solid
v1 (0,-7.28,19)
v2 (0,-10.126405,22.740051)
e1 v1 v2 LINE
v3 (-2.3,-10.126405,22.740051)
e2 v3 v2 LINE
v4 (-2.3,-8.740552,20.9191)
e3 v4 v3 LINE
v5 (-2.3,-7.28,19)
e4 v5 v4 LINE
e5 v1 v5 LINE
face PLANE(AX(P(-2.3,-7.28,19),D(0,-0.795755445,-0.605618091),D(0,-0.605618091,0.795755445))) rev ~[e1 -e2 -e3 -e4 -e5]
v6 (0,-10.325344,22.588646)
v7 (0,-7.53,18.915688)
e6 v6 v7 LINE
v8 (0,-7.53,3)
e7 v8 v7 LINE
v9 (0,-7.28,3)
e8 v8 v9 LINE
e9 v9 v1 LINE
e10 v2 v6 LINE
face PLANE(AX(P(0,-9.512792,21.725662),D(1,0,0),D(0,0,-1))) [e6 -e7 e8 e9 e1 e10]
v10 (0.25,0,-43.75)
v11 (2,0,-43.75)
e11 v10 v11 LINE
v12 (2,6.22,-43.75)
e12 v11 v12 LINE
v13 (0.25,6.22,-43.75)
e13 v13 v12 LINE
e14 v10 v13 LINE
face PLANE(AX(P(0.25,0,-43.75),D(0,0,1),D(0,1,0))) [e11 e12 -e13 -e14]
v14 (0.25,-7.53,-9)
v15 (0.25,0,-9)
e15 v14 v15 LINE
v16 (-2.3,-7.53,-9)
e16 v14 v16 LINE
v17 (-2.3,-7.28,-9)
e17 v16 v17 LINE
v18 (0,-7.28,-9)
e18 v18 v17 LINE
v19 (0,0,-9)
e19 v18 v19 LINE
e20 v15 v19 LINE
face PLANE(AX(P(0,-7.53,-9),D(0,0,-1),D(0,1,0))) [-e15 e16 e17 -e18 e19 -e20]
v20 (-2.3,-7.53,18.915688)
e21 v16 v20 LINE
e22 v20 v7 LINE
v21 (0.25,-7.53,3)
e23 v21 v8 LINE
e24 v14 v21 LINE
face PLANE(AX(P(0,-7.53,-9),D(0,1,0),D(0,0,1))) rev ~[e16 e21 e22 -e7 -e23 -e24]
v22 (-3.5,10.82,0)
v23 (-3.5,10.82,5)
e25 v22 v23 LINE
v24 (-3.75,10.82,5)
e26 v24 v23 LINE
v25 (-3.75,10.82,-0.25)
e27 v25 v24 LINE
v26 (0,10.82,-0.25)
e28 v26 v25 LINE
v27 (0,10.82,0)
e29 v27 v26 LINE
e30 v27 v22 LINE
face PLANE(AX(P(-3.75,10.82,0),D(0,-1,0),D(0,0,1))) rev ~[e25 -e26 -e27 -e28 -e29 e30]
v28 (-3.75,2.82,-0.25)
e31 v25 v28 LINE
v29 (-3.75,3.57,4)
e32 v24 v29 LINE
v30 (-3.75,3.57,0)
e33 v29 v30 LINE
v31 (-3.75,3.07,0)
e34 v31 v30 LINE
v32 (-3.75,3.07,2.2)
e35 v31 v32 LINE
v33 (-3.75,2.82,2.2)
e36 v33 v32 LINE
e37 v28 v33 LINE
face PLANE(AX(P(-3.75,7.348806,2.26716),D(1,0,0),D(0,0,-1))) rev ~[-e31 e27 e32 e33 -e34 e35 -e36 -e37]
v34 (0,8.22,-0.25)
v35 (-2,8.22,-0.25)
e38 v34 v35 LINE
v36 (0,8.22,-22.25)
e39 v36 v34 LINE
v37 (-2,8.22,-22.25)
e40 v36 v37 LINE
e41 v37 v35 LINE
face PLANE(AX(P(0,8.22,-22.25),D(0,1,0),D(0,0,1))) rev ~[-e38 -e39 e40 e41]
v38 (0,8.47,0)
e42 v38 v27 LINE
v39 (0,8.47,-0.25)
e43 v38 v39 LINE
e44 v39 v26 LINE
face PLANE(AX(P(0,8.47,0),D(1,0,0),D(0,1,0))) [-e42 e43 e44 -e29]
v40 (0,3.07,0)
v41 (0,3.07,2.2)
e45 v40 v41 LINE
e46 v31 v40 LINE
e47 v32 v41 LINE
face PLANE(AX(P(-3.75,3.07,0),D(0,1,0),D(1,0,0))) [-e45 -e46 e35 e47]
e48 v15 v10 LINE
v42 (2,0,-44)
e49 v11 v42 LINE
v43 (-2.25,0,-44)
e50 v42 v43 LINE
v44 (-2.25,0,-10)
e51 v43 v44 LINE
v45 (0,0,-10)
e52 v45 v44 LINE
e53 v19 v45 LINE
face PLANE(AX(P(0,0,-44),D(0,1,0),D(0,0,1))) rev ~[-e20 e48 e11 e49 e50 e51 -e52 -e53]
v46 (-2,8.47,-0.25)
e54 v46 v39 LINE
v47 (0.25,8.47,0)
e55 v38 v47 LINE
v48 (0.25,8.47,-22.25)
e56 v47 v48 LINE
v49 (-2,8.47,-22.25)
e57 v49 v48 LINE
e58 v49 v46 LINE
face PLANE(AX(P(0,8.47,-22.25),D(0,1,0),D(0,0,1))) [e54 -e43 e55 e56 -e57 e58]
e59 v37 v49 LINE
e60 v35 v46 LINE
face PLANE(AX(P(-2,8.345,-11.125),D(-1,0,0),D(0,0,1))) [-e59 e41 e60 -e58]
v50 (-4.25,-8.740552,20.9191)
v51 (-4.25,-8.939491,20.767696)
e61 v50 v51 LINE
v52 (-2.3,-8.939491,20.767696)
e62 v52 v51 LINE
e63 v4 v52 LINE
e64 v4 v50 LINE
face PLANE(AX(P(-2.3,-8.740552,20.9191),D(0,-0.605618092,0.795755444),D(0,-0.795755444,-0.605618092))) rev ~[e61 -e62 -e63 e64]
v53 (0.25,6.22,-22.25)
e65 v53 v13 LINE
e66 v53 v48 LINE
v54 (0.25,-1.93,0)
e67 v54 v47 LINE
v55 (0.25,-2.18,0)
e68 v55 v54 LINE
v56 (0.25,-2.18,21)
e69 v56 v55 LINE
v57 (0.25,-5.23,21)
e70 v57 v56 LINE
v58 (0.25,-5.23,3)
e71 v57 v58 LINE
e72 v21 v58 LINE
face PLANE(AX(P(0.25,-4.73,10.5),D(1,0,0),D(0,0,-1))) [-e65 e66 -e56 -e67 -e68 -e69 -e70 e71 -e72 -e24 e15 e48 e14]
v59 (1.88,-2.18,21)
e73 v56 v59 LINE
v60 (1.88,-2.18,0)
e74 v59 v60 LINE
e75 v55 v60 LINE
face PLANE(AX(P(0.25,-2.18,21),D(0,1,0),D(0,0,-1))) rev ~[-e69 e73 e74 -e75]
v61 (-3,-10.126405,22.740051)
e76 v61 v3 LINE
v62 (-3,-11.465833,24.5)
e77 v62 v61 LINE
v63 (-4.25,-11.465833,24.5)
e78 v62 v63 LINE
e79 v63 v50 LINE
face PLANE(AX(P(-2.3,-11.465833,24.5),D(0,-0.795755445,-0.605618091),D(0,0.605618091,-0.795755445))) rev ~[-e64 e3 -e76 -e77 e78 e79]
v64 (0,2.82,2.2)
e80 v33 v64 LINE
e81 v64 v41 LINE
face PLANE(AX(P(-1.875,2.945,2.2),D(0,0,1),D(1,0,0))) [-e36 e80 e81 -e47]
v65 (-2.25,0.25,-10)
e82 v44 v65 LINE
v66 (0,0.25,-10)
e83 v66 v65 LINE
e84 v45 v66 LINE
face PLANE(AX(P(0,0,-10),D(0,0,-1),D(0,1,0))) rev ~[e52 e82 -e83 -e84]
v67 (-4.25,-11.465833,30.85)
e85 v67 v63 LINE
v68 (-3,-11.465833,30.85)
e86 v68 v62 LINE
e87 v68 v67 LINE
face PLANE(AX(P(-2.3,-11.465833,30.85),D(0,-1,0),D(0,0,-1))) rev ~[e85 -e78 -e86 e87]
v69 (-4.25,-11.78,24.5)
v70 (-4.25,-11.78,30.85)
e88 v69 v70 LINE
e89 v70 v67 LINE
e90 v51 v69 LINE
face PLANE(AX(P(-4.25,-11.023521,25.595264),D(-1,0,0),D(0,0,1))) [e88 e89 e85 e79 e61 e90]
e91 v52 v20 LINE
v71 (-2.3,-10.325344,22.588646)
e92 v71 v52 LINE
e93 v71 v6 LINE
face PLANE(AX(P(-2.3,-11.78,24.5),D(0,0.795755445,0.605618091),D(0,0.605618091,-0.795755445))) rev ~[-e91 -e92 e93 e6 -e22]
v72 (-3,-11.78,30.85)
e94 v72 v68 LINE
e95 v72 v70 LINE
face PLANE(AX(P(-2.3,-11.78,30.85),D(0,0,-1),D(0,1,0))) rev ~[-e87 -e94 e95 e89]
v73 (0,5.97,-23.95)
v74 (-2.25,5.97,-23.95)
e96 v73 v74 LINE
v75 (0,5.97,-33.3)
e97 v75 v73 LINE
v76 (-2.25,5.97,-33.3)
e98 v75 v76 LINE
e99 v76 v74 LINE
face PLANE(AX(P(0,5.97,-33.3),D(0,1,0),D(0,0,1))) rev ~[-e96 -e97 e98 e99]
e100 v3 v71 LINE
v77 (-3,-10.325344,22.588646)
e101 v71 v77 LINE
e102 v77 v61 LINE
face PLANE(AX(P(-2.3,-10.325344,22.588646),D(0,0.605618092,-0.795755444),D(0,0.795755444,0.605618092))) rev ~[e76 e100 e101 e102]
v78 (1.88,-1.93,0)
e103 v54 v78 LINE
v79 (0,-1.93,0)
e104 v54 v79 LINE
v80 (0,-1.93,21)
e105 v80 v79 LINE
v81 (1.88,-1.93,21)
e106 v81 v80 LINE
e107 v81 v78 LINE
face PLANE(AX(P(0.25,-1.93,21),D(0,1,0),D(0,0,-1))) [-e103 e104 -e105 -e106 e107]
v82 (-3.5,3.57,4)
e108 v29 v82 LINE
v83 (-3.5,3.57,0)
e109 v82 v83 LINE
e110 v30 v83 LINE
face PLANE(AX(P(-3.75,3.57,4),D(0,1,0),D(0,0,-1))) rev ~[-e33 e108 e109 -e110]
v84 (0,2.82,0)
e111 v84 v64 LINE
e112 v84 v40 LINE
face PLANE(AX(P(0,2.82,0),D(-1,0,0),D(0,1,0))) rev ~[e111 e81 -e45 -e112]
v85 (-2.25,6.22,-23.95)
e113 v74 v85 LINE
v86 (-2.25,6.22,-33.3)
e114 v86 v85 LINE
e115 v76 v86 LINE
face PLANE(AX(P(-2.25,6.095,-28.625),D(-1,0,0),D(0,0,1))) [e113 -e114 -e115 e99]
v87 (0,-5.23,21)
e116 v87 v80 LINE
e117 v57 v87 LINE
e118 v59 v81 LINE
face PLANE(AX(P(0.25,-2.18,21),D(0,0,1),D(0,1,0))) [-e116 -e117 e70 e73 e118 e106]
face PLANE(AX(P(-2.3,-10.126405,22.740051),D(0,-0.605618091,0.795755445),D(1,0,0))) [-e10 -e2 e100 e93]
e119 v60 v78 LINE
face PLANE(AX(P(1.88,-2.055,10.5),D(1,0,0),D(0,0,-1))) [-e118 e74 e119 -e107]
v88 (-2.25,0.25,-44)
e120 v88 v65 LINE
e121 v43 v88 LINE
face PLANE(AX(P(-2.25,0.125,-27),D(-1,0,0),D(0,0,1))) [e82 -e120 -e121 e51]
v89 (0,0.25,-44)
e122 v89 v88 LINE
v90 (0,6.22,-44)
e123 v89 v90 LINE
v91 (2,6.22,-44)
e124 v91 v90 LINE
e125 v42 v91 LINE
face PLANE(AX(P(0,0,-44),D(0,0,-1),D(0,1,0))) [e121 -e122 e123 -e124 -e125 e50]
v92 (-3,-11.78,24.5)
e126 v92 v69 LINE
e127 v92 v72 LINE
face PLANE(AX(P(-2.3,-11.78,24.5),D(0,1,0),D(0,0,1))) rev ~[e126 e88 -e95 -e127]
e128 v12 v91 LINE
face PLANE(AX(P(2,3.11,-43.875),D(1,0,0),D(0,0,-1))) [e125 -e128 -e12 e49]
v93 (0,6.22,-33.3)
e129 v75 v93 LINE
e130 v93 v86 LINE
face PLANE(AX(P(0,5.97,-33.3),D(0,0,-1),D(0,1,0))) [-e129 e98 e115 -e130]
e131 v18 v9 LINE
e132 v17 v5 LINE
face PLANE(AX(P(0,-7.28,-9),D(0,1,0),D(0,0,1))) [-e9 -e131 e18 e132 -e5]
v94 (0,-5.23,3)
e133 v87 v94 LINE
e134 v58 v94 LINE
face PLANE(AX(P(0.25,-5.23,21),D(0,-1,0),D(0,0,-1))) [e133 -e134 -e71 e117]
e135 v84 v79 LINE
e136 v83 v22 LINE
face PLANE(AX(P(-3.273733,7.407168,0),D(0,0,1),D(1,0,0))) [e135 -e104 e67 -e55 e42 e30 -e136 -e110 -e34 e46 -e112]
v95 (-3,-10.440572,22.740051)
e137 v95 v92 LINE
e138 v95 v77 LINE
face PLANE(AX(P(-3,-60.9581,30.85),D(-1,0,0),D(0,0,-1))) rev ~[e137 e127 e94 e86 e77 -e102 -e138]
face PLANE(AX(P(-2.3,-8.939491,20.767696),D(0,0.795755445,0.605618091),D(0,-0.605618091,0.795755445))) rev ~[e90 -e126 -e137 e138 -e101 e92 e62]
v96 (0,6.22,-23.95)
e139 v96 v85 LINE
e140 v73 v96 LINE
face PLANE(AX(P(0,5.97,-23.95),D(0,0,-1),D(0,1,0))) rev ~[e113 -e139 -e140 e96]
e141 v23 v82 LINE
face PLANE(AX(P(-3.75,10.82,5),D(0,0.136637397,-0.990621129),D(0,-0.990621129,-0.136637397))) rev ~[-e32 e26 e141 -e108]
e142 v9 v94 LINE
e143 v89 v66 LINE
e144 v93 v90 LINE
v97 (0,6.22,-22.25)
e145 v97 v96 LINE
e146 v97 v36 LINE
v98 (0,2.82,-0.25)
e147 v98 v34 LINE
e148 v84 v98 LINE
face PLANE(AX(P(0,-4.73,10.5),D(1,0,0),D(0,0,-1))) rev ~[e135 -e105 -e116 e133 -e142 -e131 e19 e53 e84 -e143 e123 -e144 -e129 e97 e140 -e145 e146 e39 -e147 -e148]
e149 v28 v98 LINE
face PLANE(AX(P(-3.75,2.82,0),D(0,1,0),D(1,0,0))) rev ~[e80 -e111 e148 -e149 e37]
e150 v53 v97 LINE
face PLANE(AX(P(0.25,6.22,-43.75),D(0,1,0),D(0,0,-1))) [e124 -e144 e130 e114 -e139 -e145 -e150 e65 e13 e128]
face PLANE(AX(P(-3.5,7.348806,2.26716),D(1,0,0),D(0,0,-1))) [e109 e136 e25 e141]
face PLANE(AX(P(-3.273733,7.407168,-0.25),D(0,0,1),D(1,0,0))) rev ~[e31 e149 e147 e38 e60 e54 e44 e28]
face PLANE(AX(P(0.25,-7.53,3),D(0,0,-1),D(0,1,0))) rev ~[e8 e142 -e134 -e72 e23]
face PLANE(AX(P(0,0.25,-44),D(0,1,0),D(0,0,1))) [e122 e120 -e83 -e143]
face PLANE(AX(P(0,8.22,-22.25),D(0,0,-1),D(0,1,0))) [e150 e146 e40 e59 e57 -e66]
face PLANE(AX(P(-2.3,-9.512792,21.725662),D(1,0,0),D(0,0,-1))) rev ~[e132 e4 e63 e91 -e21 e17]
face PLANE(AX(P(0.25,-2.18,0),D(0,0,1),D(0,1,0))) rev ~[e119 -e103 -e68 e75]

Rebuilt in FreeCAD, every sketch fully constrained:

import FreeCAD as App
import Part
import Sketcher

V = App.Vector

doc = App.newDocument("Part")
body = doc.addObject("PartDesign::Body", "Body")

# Sketch on YZ plane
sketch1 = body.newObject("Sketcher::SketchObject", "Sketch")
sketch1.AttachmentSupport = (doc.getObject("YZ_Plane"), [""])
sketch1.MapMode = "FlatFace"
sketch1.addGeometry([
    Part.LineSegment(V(6, 0, 0), V(0, 0, 0)),
    Part.LineSegment(V(0, 0, 0), V(0, -44, 0)),
    Part.LineSegment(V(0, -44, 0), V(6, -44, 0)),
    Part.LineSegment(V(6, -44, 0), V(6, 0, 0)),
], False)
sketch1.addConstraint([
    Sketcher.Constraint("Coincident", 0, 2, 1, 1),
    Sketcher.Constraint("Coincident", 1, 2, 2, 1),
    Sketcher.Constraint("Coincident", 2, 2, 3, 1),
    Sketcher.Constraint("Coincident", 3, 2, 0, 1),
    Sketcher.Constraint("Horizontal", 0),
    Sketcher.Constraint("Vertical", 1),
    Sketcher.Constraint("Horizontal", 2),
    Sketcher.Constraint("Vertical", 3),
    Sketcher.Constraint("Coincident", 0, 2, -1, 1),
    Sketcher.Constraint("DistanceY", 1, 2, 1, 1, 44.0),
    Sketcher.Constraint("DistanceX", 0, 2, 0, 1, 6.22),
])
pad1 = body.newObject("PartDesign::Pad", "Pad")
pad1.Profile = sketch1
pad1.Length = 0.25

# Sketch on YZ plane
sketch2 = body.newObject("Sketcher::SketchObject", "Sketch001")
sketch2.AttachmentSupport = (doc.getObject("YZ_Plane"), [""])
sketch2.MapMode = "FlatFace"
sketch2.AttachmentOffset = App.Placement(V(0, 0, 0.25), App.Rotation())
sketch2.addGeometry([
    Part.LineSegment(V(6.22, -43.75, 0), V(0, -43.75, 0)),
    Part.LineSegment(V(0, -43.75, 0), V(0, -44, 0)),
    Part.LineSegment(V(0, -44, 0), V(6.22, -44, 0)),
    Part.LineSegment(V(6.22, -44, 0), V(6.22, -43.75, 0)),
], False)
sketch2.addConstraint([
    Sketcher.Constraint("Coincident", 0, 2, 1, 1),
    Sketcher.Constraint("Coincident", 1, 2, 2, 1),
    Sketcher.Constraint("Coincident", 2, 2, 3, 1),
    Sketcher.Constraint("Coincident", 3, 2, 0, 1),
    Sketcher.Constraint("Horizontal", 0),
    Sketcher.Constraint("Vertical", 1),
    Sketcher.Constraint("Horizontal", 2),
    Sketcher.Constraint("Vertical", 3),
    Sketcher.Constraint("PointOnObject", 0, 2, -2),
    Sketcher.Constraint("DistanceY", 1, 2, -1, 1, 44.0),
    Sketcher.Constraint("DistanceX", 0, 2, 0, 1, 6.22),
    Sketcher.Constraint("DistanceY", 1, 2, 1, 1, 0.25),
])
pad2 = body.newObject("PartDesign::Pad", "Pad001")
pad2.Profile = sketch2
pad2.Length = 1.75

# Sketch on YZ plane
sketch3 = body.newObject("Sketcher::SketchObject", "Sketch002")
sketch3.AttachmentSupport = (doc.getObject("YZ_Plane"), [""])
sketch3.MapMode = "FlatFace"
sketch3.addGeometry([
    Part.LineSegment(V(0.25, -44, 0), V(0, -44, 0)),  # 0
    Part.LineSegment(V(0, -44, 0), V(0, -10, 0)),  # 1
    Part.LineSegment(V(0, -10, 0), V(0.25, -10, 0)),  # 2
    Part.LineSegment(V(0.25, -10, 0), V(0.25, -44, 0)),  # 3
    Part.LineSegment(V(6.22, -33.3, 0), V(5.97, -33.3, 0)),  # 4
    Part.LineSegment(V(5.97, -33.3, 0), V(5.97, -23.95, 0)),  # 5
    Part.LineSegment(V(5.97, -23.95, 0), V(6.22, -23.95, 0)),  # 6
    Part.LineSegment(V(6.22, -23.95, 0), V(6.22, -33.3, 0)),  # 7
], False)
sketch3.addConstraint([
    Sketcher.Constraint("Coincident", 0, 2, 1, 1),
    Sketcher.Constraint("Coincident", 1, 2, 2, 1),
    Sketcher.Constraint("Coincident", 2, 2, 3, 1),
    Sketcher.Constraint("Coincident", 3, 2, 0, 1),
    Sketcher.Constraint("Coincident", 4, 2, 5, 1),
    Sketcher.Constraint("Coincident", 5, 2, 6, 1),
    Sketcher.Constraint("Coincident", 6, 2, 7, 1),
    Sketcher.Constraint("Coincident", 7, 2, 4, 1),
    Sketcher.Constraint("Horizontal", 0),
    Sketcher.Constraint("Vertical", 1),
    Sketcher.Constraint("Horizontal", 2),
    Sketcher.Constraint("Vertical", 3),
    Sketcher.Constraint("Horizontal", 4),
    Sketcher.Constraint("Vertical", 5),
    Sketcher.Constraint("Horizontal", 6),
    Sketcher.Constraint("Vertical", 7),
    Sketcher.Constraint("PointOnObject", 0, 2, -2),
    Sketcher.Constraint("Equal", 2, 4),
    Sketcher.Constraint("DistanceY", 1, 1, 1, 2, 34.0),
    Sketcher.Constraint("DistanceY", 0, 2, -1, 1, 44.0),
    Sketcher.Constraint("DistanceX", 0, 2, 0, 1, 0.25),
    Sketcher.Constraint("DistanceY", 5, 1, 5, 2, 9.35),
    Sketcher.Constraint("DistanceY", 4, 2, -1, 1, 33.3),
    Sketcher.Constraint("DistanceX", -1, 1, 4, 2, 5.97),
])
pad3 = body.newObject("PartDesign::Pad", "Pad002")
pad3.Profile = sketch3
pad3.Length = 2.25
pad3.Reversed = True

# Sketch on YZ plane
sketch4 = body.newObject("Sketcher::SketchObject", "Sketch003")
sketch4.AttachmentSupport = (doc.getObject("YZ_Plane"), [""])
sketch4.MapMode = "FlatFace"
sketch4.AttachmentOffset = App.Placement(V(0, 0, 0.25), App.Rotation())
sketch4.addGeometry([
    Part.LineSegment(V(8.5, 0, 0), V(6.2, 0, 0)),  # 0
    Part.LineSegment(V(6.2, 0, 0), V(6.2, -22.2, 0)),  # 1
    Part.LineSegment(V(6.2, -22.2, 0), V(8.5, -22.2, 0)),  # 2
    Part.LineSegment(V(8.5, -22.2, 0), V(8.5, 0, 0)),  # 3
    Part.LineSegment(V(0, 0, 0), V(-7.5, 0, 0)),  # 4
    Part.LineSegment(V(-7.5, 0, 0), V(-7.5, -9, 0)),  # 5
    Part.LineSegment(V(-7.5, -9, 0), V(0, -9, 0)),  # 6
    Part.LineSegment(V(0, -9, 0), V(0, 0, 0)),  # 7
], False)
sketch4.addConstraint([
    Sketcher.Constraint("Coincident", 0, 2, 1, 1),
    Sketcher.Constraint("Coincident", 1, 2, 2, 1),
    Sketcher.Constraint("Coincident", 2, 2, 3, 1),
    Sketcher.Constraint("Coincident", 3, 2, 0, 1),
    Sketcher.Constraint("Coincident", 4, 2, 5, 1),
    Sketcher.Constraint("Coincident", 5, 2, 6, 1),
    Sketcher.Constraint("Coincident", 6, 2, 7, 1),
    Sketcher.Constraint("Coincident", 7, 2, 4, 1),
    Sketcher.Constraint("Horizontal", 0),
    Sketcher.Constraint("Vertical", 1),
    Sketcher.Constraint("Horizontal", 2),
    Sketcher.Constraint("Vertical", 3),
    Sketcher.Constraint("Horizontal", 4),
    Sketcher.Constraint("Vertical", 5),
    Sketcher.Constraint("Horizontal", 6),
    Sketcher.Constraint("Vertical", 7),
    Sketcher.Constraint("Coincident", 7, 2, -1, 1),
    Sketcher.Constraint("PointOnObject", 0, 2, -1),
    Sketcher.Constraint("DistanceY", 5, 2, 5, 1, 9.0),
    Sketcher.Constraint("DistanceX", 4, 2, 3, 2, 16.0),
    Sketcher.Constraint("DistanceX", 0, 2, 0, 1, 2.25),
    Sketcher.Constraint("DistanceX", 4, 2, 4, 1, 7.53),
    Sketcher.Constraint("DistanceY", 1, 2, 1, 1, 22.25),
])
pad4 = body.newObject("PartDesign::Pad", "Pad003")
pad4.Profile = sketch4
pad4.Length = 0.25
pad4.Reversed = True

# Sketch on YZ plane
sketch5 = body.newObject("Sketcher::SketchObject", "Sketch004")
sketch5.AttachmentSupport = (doc.getObject("YZ_Plane"), [""])
sketch5.MapMode = "FlatFace"
sketch5.AttachmentOffset = App.Placement(V(0, 0, 0.25), App.Rotation())
sketch5.addGeometry([
    Part.LineSegment(V(-2, 21, 0), V(-8, 21, 0)),
    Part.LineSegment(V(-8, 21, 0), V(-8, 0, 0)),
    Part.LineSegment(V(-8, 0, 0), V(-2, 0, 0)),
    Part.LineSegment(V(-2, 0, 0), V(-2, 21, 0)),
], False)
sketch5.addConstraint([
    Sketcher.Constraint("Coincident", 0, 2, 1, 1),
    Sketcher.Constraint("Coincident", 1, 2, 2, 1),
    Sketcher.Constraint("Coincident", 2, 2, 3, 1),
    Sketcher.Constraint("Coincident", 3, 2, 0, 1),
    Sketcher.Constraint("Horizontal", 0),
    Sketcher.Constraint("Vertical", 1),
    Sketcher.Constraint("Horizontal", 2),
    Sketcher.Constraint("Vertical", 3),
    Sketcher.Constraint("PointOnObject", 1, 2, -1),
    Sketcher.Constraint("DistanceY", 1, 2, 1, 1, 21.0),
    Sketcher.Constraint("DistanceX", 0, 2, 0, 1, 5.6),
    Sketcher.Constraint("DistanceX", 0, 2, -1, 1, 7.53),
])
pad5 = body.newObject("PartDesign::Pad", "Pad004")
pad5.Profile = sketch5
pad5.Length = 0.25
pad5.Reversed = True

# Sketch on YZ plane
sketch6 = body.newObject("Sketcher::SketchObject", "Sketch005")
sketch6.AttachmentSupport = (doc.getObject("YZ_Plane"), [""])
sketch6.MapMode = "FlatFace"
sketch6.AttachmentOffset = App.Placement(V(0, 0, 0.25), App.Rotation())
sketch6.addGeometry([
    Part.LineSegment(V(-5.2, 21, 0), V(-7.5, 21, 0)),
    Part.LineSegment(V(-7.5, 21, 0), V(-7.5, 3, 0)),
    Part.LineSegment(V(-7.5, 3, 0), V(-5.2, 3, 0)),
    Part.LineSegment(V(-5.2, 3, 0), V(-5.2, 21, 0)),
], False)
sketch6.addConstraint([
    Sketcher.Constraint("Coincident", 0, 2, 1, 1),
    Sketcher.Constraint("Coincident", 1, 2, 2, 1),
    Sketcher.Constraint("Coincident", 2, 2, 3, 1),
    Sketcher.Constraint("Coincident", 3, 2, 0, 1),
    Sketcher.Constraint("Horizontal", 0),
    Sketcher.Constraint("Vertical", 1),
    Sketcher.Constraint("Horizontal", 2),
    Sketcher.Constraint("Vertical", 3),
    Sketcher.Constraint("DistanceY", 1, 2, 1, 1, 18.0),
    Sketcher.Constraint("DistanceX", 0, 2, 0, 1, 2.3),
    Sketcher.Constraint("DistanceY", -1, 1, 0, 2, 21.0),
    Sketcher.Constraint("DistanceX", 0, 2, -1, 1, 7.53),
])
pocket1 = body.newObject("PartDesign::Pocket", "Pocket")
pocket1.Profile = sketch6
pocket1.Type = "ThroughAll"

# Sketch on YZ plane
sketch7 = body.newObject("Sketcher::SketchObject", "Sketch006")
sketch7.AttachmentSupport = (doc.getObject("YZ_Plane"), [""])
sketch7.MapMode = "FlatFace"
sketch7.AttachmentOffset = App.Placement(V(0, 0, 0.25), App.Rotation())
sketch7.addGeometry([
    Part.LineSegment(V(-1.93, 21, 0), V(-2.18, 21, 0)),
    Part.LineSegment(V(-2.18, 21, 0), V(-2.18, 0, 0)),
    Part.LineSegment(V(-2.18, 0, 0), V(-1.93, 0, 0)),
    Part.LineSegment(V(-1.93, 0, 0), V(-1.93, 21, 0)),
], False)
sketch7.addConstraint([
    Sketcher.Constraint("Coincident", 0, 2, 1, 1),
    Sketcher.Constraint("Coincident", 1, 2, 2, 1),
    Sketcher.Constraint("Coincident", 2, 2, 3, 1),
    Sketcher.Constraint("Coincident", 3, 2, 0, 1),
    Sketcher.Constraint("Horizontal", 0),
    Sketcher.Constraint("Vertical", 1),
    Sketcher.Constraint("Horizontal", 2),
    Sketcher.Constraint("Vertical", 3),
    Sketcher.Constraint("PointOnObject", 1, 2, -1),
    Sketcher.Constraint("DistanceY", 1, 2, 1, 1, 21.0),
    Sketcher.Constraint("DistanceX", 0, 2, 0, 1, 0.25),
    Sketcher.Constraint("DistanceX", 0, 2, -1, 1, 2.18),
])
pad6 = body.newObject("PartDesign::Pad", "Pad005")
pad6.Profile = sketch7
pad6.Length = 1.63

# Sketch on YZ plane
sketch8 = body.newObject("Sketcher::SketchObject", "Sketch007")
sketch8.AttachmentSupport = (doc.getObject("YZ_Plane"), [""])
sketch8.MapMode = "FlatFace"
sketch8.addGeometry([
    Part.LineSegment(V(-7.28, -9, 0), V(-7.53, -9, 0)),
    Part.LineSegment(V(-7.53, -9, 0), V(-7.53, 19, 0)),
    Part.LineSegment(V(-7.53, 19, 0), V(-7.28, 19, 0)),
    Part.LineSegment(V(-7.28, 19, 0), V(-7.28, -9, 0)),
], False)
sketch8.addConstraint([
    Sketcher.Constraint("Coincident", 0, 2, 1, 1),
    Sketcher.Constraint("Coincident", 1, 2, 2, 1),
    Sketcher.Constraint("Coincident", 2, 2, 3, 1),
    Sketcher.Constraint("Coincident", 3, 2, 0, 1),
    Sketcher.Constraint("Horizontal", 0),
    Sketcher.Constraint("Vertical", 1),
    Sketcher.Constraint("Horizontal", 2),
    Sketcher.Constraint("Vertical", 3),
    Sketcher.Constraint("DistanceY", 1, 1, 1, 2, 28.0),
    Sketcher.Constraint("DistanceY", 0, 2, -1, 1, 9.0),
    Sketcher.Constraint("DistanceX", 0, 2, 0, 1, 0.25),
    Sketcher.Constraint("DistanceX", 0, 2, -1, 1, 7.53),
])
pad7 = body.newObject("PartDesign::Pad", "Pad006")
pad7.Profile = sketch8
pad7.Length = 2.3
pad7.Reversed = True

# Sketch on YZ plane
sketch9 = body.newObject("Sketcher::SketchObject", "Sketch008")
sketch9.AttachmentSupport = (doc.getObject("YZ_Plane"), [""])
sketch9.MapMode = "FlatFace"
sketch9.AttachmentOffset = App.Placement(V(0, 0, -2.3), App.Rotation())
sketch9.addGeometry([
    Part.LineSegment(V(-11.47, 24.5, 0), V(-7.28, 19, 0)),  # 0
    Part.LineSegment(V(-7.28, 19, 0), V(-7.53, 19, 0)),  # 1
    Part.LineSegment(V(-7.53, 19, 0), V(-7.53, 18.92, 0)),  # 2
    Part.LineSegment(V(-7.53, 18.92, 0), V(-11.78, 24.5, 0)),  # 3
    Part.LineSegment(V(-11.78, 24.5, 0), V(-11.47, 24.5, 0)),  # 4
], False)
sketch9.addConstraint([
    Sketcher.Constraint("Coincident", 0, 2, 1, 1),
    Sketcher.Constraint("Coincident", 1, 2, 2, 1),
    Sketcher.Constraint("Coincident", 2, 2, 3, 1),
    Sketcher.Constraint("Coincident", 3, 2, 4, 1),
    Sketcher.Constraint("Coincident", 4, 2, 0, 1),
    Sketcher.Constraint("Horizontal", 1),
    Sketcher.Constraint("Vertical", 2),
    Sketcher.Constraint("Horizontal", 4),
    Sketcher.Constraint("Parallel", 0, 3),
    Sketcher.Constraint("DistanceY", -1, 1, 0, 2, 19.0),
    Sketcher.Constraint("DistanceX", 1, 2, 1, 1, 0.25),
    Sketcher.Constraint("DistanceY", -1, 1, 3, 2, 24.5),
    Sketcher.Constraint("DistanceX", 3, 2, 0, 2, 4.5),
    Sketcher.Constraint("DistanceX", 0, 2, -1, 1, 7.28),
    Sketcher.Constraint("Distance", 0, 6.911671),
])
pad8 = body.newObject("PartDesign::Pad", "Pad007")
pad8.Profile = sketch9
pad8.Length = 2.3

# Sketch on YZ plane
sketch10 = body.newObject("Sketcher::SketchObject", "Sketch009")
sketch10.AttachmentSupport = (doc.getObject("YZ_Plane"), [""])
sketch10.MapMode = "FlatFace"
sketch10.AttachmentOffset = App.Placement(V(0, 0, -2.3), App.Rotation())
sketch10.addGeometry([
    Part.LineSegment(V(-11.47, 24.5, 0), V(-8.74, 20.92, 0)),  # 0
    Part.LineSegment(V(-8.74, 20.92, 0), V(-8.94, 20.77, 0)),  # 1
    Part.LineSegment(V(-8.94, 20.77, 0), V(-11.78, 24.5, 0)),  # 2
    Part.LineSegment(V(-11.78, 24.5, 0), V(-11.78, 30.85, 0)),  # 3
    Part.LineSegment(V(-11.78, 30.85, 0), V(-11.47, 30.85, 0)),  # 4
    Part.LineSegment(V(-11.47, 30.85, 0), V(-11.47, 24.5, 0)),  # 5
], False)
sketch10.addConstraint([
    Sketcher.Constraint("Coincident", 0, 2, 1, 1),
    Sketcher.Constraint("Coincident", 1, 2, 2, 1),
    Sketcher.Constraint("Coincident", 2, 2, 3, 1),
    Sketcher.Constraint("Coincident", 3, 2, 4, 1),
    Sketcher.Constraint("Coincident", 4, 2, 5, 1),
    Sketcher.Constraint("Coincident", 5, 2, 0, 1),
    Sketcher.Constraint("Vertical", 3),
    Sketcher.Constraint("Horizontal", 4),
    Sketcher.Constraint("Vertical", 5),
    Sketcher.Constraint("Perpendicular", 0, 1),
    Sketcher.Constraint("Perpendicular", 1, 2),
    Sketcher.Constraint("Horizontal", 2, 2, 5, 2),
    Sketcher.Constraint("Distance", 0, 4.5),
    Sketcher.Constraint("DistanceY", 3, 1, 3, 2, 6.35),
    Sketcher.Constraint("DistanceY", -1, 1, 2, 2, 24.5),
    Sketcher.Constraint("Distance", 1, 0.25),
    Sketcher.Constraint("DistanceX", 2, 2, -1, 1, 11.78),
    Sketcher.Constraint("DistanceY", -1, 1, 0, 2, 20.9191),
])
pad9 = body.newObject("PartDesign::Pad", "Pad008")
pad9.Profile = sketch10
pad9.Length = 1.95
pad9.Reversed = True

# Sketch on an angled plane
sketch11 = body.newObject("Sketcher::SketchObject", "Sketch010")
sketch11.Placement = App.Placement(V(0, 4.546663, 3.460286), App.Rotation(V(1, 0, 0), V(0, 0.605618091, -0.795755445), V(0, 0.795755445, 0.605618091), "ZXY"))
sketch11.addGeometry([
    Part.LineSegment(V(-2.3, -24.2, 0), V(-2.3, -26.6, 0)),
    Part.LineSegment(V(-2.3, -26.6, 0), V(0, -26.6, 0)),
    Part.LineSegment(V(0, -26.6, 0), V(0, -24.2, 0)),
    Part.LineSegment(V(0, -24.2, 0), V(-2.3, -24.2, 0)),
], False)
sketch11.addConstraint([
    Sketcher.Constraint("Coincident", 0, 2, 1, 1),
    Sketcher.Constraint("Coincident", 1, 2, 2, 1),
    Sketcher.Constraint("Coincident", 2, 2, 3, 1),
    Sketcher.Constraint("Coincident", 3, 2, 0, 1),
    Sketcher.Constraint("Vertical", 0),
    Sketcher.Constraint("Horizontal", 1),
    Sketcher.Constraint("Vertical", 2),
    Sketcher.Constraint("Horizontal", 3),
    Sketcher.Constraint("PointOnObject", 1, 2, -2),
    Sketcher.Constraint("DistanceX", 1, 1, 1, 2, 2.3),
    Sketcher.Constraint("DistanceY", 0, 2, 0, 1, 2.401936),
    Sketcher.Constraint("DistanceY", 0, 2, -1, 1, 26.63019),
])
pocket2 = body.newObject("PartDesign::Pocket", "Pocket001")
pocket2.Profile = sketch11
pocket2.Type = "ThroughAll"

# Sketch on XZ plane
sketch12 = body.newObject("Sketcher::SketchObject", "Sketch011")
sketch12.AttachmentSupport = (doc.getObject("XZ_Plane"), [""])
sketch12.MapMode = "FlatFace"
sketch12.AttachmentOffset = App.Placement(V(0, 0, 11.465833), App.Rotation())
sketch12.addGeometry([
    Part.LineSegment(V(-3, 22.7, 0), V(-3, 30.9, 0)),
    Part.LineSegment(V(-3, 30.9, 0), V(-2.3, 30.9, 0)),
    Part.LineSegment(V(-2.3, 30.9, 0), V(-2.3, 22.7, 0)),
    Part.LineSegment(V(-2.3, 22.7, 0), V(-3, 22.7, 0)),
], False)
sketch12.addConstraint([
    Sketcher.Constraint("Coincident", 0, 2, 1, 1),
    Sketcher.Constraint("Coincident", 1, 2, 2, 1),
    Sketcher.Constraint("Coincident", 2, 2, 3, 1),
    Sketcher.Constraint("Coincident", 3, 2, 0, 1),
    Sketcher.Constraint("Vertical", 0),
    Sketcher.Constraint("Horizontal", 1),
    Sketcher.Constraint("Vertical", 2),
    Sketcher.Constraint("Horizontal", 3),
    Sketcher.Constraint("DistanceX", 1, 1, 1, 2, 0.7),
    Sketcher.Constraint("DistanceX", 0, 2, -1, 1, 3.0),
    Sketcher.Constraint("DistanceY", -1, 1, 0, 2, 30.85),
    Sketcher.Constraint("DistanceY", 0, 1, 0, 2, 8.109949),
])
pocket3 = body.newObject("PartDesign::Pocket", "Pocket002")
pocket3.Profile = sketch12
pocket3.Type = "ThroughAll"
pocket3.Midplane = True

# Sketch on YZ plane
sketch13 = body.newObject("Sketcher::SketchObject", "Sketch012")
sketch13.AttachmentSupport = (doc.getObject("YZ_Plane"), [""])
sketch13.MapMode = "FlatFace"
sketch13.AttachmentOffset = App.Placement(V(0, 0, -2.3), App.Rotation())
sketch13.addGeometry([
    Part.LineSegment(V(-10.13, 22.74, 0), V(-10.44, 22.74, 0)),
    Part.LineSegment(V(-10.44, 22.74, 0), V(-10.33, 22.59, 0)),
    Part.LineSegment(V(-10.33, 22.59, 0), V(-10.13, 22.74, 0)),
], False)
sketch13.addConstraint([
    Sketcher.Constraint("Coincident", 0, 2, 1, 1),
    Sketcher.Constraint("Coincident", 1, 2, 2, 1),
    Sketcher.Constraint("Coincident", 2, 2, 0, 1),
    Sketcher.Constraint("Horizontal", 0),
    Sketcher.Constraint("Perpendicular", 1, 2),
    Sketcher.Constraint("Distance", 2, 0.25),
    Sketcher.Constraint("DistanceX", 0, 2, 0, 1, 0.314167),
    Sketcher.Constraint("DistanceX", 0, 2, -1, 1, 10.440572),
    Sketcher.Constraint("DistanceY", -1, 1, 0, 2, 22.740051),
])
pocket4 = body.newObject("PartDesign::Pocket", "Pocket003")
pocket4.Profile = sketch13
pocket4.Length = 0.7

# Sketch on YZ plane
sketch14 = body.newObject("Sketcher::SketchObject", "Sketch013")
sketch14.AttachmentSupport = (doc.getObject("YZ_Plane"), [""])
sketch14.MapMode = "FlatFace"
sketch14.addGeometry([
    Part.LineSegment(V(8.47, -22.25, 0), V(8.22, -22.25, 0)),
    Part.LineSegment(V(8.22, -22.25, 0), V(8.22, 0, 0)),
    Part.LineSegment(V(8.22, 0, 0), V(8.47, 0, 0)),
    Part.LineSegment(V(8.47, 0, 0), V(8.47, -22.25, 0)),
], False)
sketch14.addConstraint([
    Sketcher.Constraint("Coincident", 0, 2, 1, 1),
    Sketcher.Constraint("Coincident", 1, 2, 2, 1),
    Sketcher.Constraint("Coincident", 2, 2, 3, 1),
    Sketcher.Constraint("Coincident", 3, 2, 0, 1),
    Sketcher.Constraint("Horizontal", 0),
    Sketcher.Constraint("Vertical", 1),
    Sketcher.Constraint("Horizontal", 2),
    Sketcher.Constraint("Vertical", 3),
    Sketcher.Constraint("PointOnObject", 1, 2, -1),
    Sketcher.Constraint("DistanceX", 0, 2, 0, 1, 0.25),
    Sketcher.Constraint("DistanceY", 1, 1, 1, 2, 22.25),
    Sketcher.Constraint("DistanceX", -1, 1, 0, 2, 8.22),
])
pad10 = body.newObject("PartDesign::Pad", "Pad009")
pad10.Profile = sketch14
pad10.Length = 2
pad10.Reversed = True

# Sketch on XY plane
sketch15 = body.newObject("Sketcher::SketchObject", "Sketch014")
sketch15.AttachmentSupport = (doc.getObject("XY_Plane"), [""])
sketch15.MapMode = "FlatFace"
sketch15.addGeometry([
    Part.LineSegment(V(0, 2.82, 0), V(0, 8.22, 0)),  # 0
    Part.LineSegment(V(0, 8.22, 0), V(-2, 8.22, 0)),  # 1
    Part.LineSegment(V(-2, 8.22, 0), V(-2, 8.47, 0)),  # 2
    Part.LineSegment(V(-2, 8.47, 0), V(0, 8.47, 0)),  # 3
    Part.LineSegment(V(0, 8.47, 0), V(0, 10.82, 0)),  # 4
    Part.LineSegment(V(0, 10.82, 0), V(-8.5, 10.82, 0)),  # 5
    Part.LineSegment(V(-8.5, 10.82, 0), V(-5, 2.82, 0)),  # 6
    Part.LineSegment(V(-5, 2.82, 0), V(0, 2.82, 0)),  # 7
], False)
sketch15.addConstraint([
    Sketcher.Constraint("Coincident", 0, 2, 1, 1),
    Sketcher.Constraint("Coincident", 1, 2, 2, 1),
    Sketcher.Constraint("Coincident", 2, 2, 3, 1),
    Sketcher.Constraint("Coincident", 3, 2, 4, 1),
    Sketcher.Constraint("Coincident", 4, 2, 5, 1),
    Sketcher.Constraint("Coincident", 5, 2, 6, 1),
    Sketcher.Constraint("Coincident", 6, 2, 7, 1),
    Sketcher.Constraint("Coincident", 7, 2, 0, 1),
    Sketcher.Constraint("Vertical", 0),
    Sketcher.Constraint("Horizontal", 1),
    Sketcher.Constraint("Vertical", 2),
    Sketcher.Constraint("Horizontal", 3),
    Sketcher.Constraint("Vertical", 4),
    Sketcher.Constraint("Horizontal", 5),
    Sketcher.Constraint("Horizontal", 7),
    Sketcher.Constraint("PointOnObject", 0, 2, -2),
    Sketcher.Constraint("PointOnObject", 3, 2, -2),
    Sketcher.Constraint("DistanceX", 1, 2, 1, 1, 2.0),
    Sketcher.Constraint("DistanceX", 7, 1, 7, 2, 5.0),
    Sketcher.Constraint("DistanceX", 5, 2, 5, 1, 8.5),
    Sketcher.Constraint("DistanceY", 0, 1, 0, 2, 5.4),
    Sketcher.Constraint("DistanceY", 6, 2, 5, 2, 8.0),
    Sketcher.Constraint("DistanceY", 2, 1, 2, 2, 0.25),
    Sketcher.Constraint("DistanceY", -1, 1, 0, 2, 8.22),
])
pad11 = body.newObject("PartDesign::Pad", "Pad010")
pad11.Profile = sketch15
pad11.Length = 0.25
pad11.Reversed = True

# Sketch on XY plane
sketch16 = body.newObject("Sketcher::SketchObject", "Sketch015")
sketch16.AttachmentSupport = (doc.getObject("XY_Plane"), [""])
sketch16.MapMode = "FlatFace"
sketch16.addGeometry([
    Part.LineSegment(V(-8.5, 10.8, 0), V(-8.5, 2.8, 0)),
    Part.LineSegment(V(-8.5, 2.8, 0), V(-3.8, 2.8, 0)),
    Part.LineSegment(V(-3.8, 2.8, 0), V(-3.8, 10.8, 0)),
    Part.LineSegment(V(-3.8, 10.8, 0), V(-8.5, 10.8, 0)),
], False)
sketch16.addConstraint([
    Sketcher.Constraint("Coincident", 0, 2, 1, 1),
    Sketcher.Constraint("Coincident", 1, 2, 2, 1),
    Sketcher.Constraint("Coincident", 2, 2, 3, 1),
    Sketcher.Constraint("Coincident", 3, 2, 0, 1),
    Sketcher.Constraint("Vertical", 0),
    Sketcher.Constraint("Horizontal", 1),
    Sketcher.Constraint("Vertical", 2),
    Sketcher.Constraint("Horizontal", 3),
    Sketcher.Constraint("DistanceY", 0, 2, 0, 1, 8.0),
    Sketcher.Constraint("DistanceX", 1, 1, 1, 2, 4.75),
    Sketcher.Constraint("DistanceX", 0, 2, -1, 1, 8.5),
    Sketcher.Constraint("DistanceY", -1, 1, 0, 2, 2.82),
])
pocket5 = body.newObject("PartDesign::Pocket", "Pocket004")
pocket5.Profile = sketch16
pocket5.Type = "UpToFirst"

# Sketch on XY plane
sketch17 = body.newObject("Sketcher::SketchObject", "Sketch016")
sketch17.AttachmentSupport = (doc.getObject("XY_Plane"), [""])
sketch17.MapMode = "FlatFace"
sketch17.addGeometry([
    Part.LineSegment(V(-3.75, 3.07, 0), V(-3.75, 2.82, 0)),
    Part.LineSegment(V(-3.75, 2.82, 0), V(0, 2.82, 0)),
    Part.LineSegment(V(0, 2.82, 0), V(0, 3.07, 0)),
    Part.LineSegment(V(0, 3.07, 0), V(-3.75, 3.07, 0)),
], False)
sketch17.addConstraint([
    Sketcher.Constraint("Coincident", 0, 2, 1, 1),
    Sketcher.Constraint("Coincident", 1, 2, 2, 1),
    Sketcher.Constraint("Coincident", 2, 2, 3, 1),
    Sketcher.Constraint("Coincident", 3, 2, 0, 1),
    Sketcher.Constraint("Vertical", 0),
    Sketcher.Constraint("Horizontal", 1),
    Sketcher.Constraint("Vertical", 2),
    Sketcher.Constraint("Horizontal", 3),
    Sketcher.Constraint("PointOnObject", 1, 2, -2),
    Sketcher.Constraint("DistanceX", 1, 1, 1, 2, 3.75),
    Sketcher.Constraint("DistanceY", 0, 2, 0, 1, 0.25),
    Sketcher.Constraint("DistanceY", -1, 1, 0, 2, 2.82),
])
pad12 = body.newObject("PartDesign::Pad", "Pad011")
pad12.Profile = sketch17
pad12.Length = 2.2

# Sketch on YZ plane
sketch18 = body.newObject("Sketcher::SketchObject", "Sketch017")
sketch18.AttachmentSupport = (doc.getObject("YZ_Plane"), [""])
sketch18.MapMode = "FlatFace"
sketch18.AttachmentOffset = App.Placement(V(0, 0, -3.75), App.Rotation())
sketch18.addGeometry([
    Part.LineSegment(V(10.8, 5, 0), V(10.8, 0, 0)),
    Part.LineSegment(V(10.8, 0, 0), V(3.6, 0, 0)),
    Part.LineSegment(V(3.6, 0, 0), V(3.6, 4, 0)),
    Part.LineSegment(V(3.6, 4, 0), V(10.8, 5, 0)),
], False)
sketch18.addConstraint([
    Sketcher.Constraint("Coincident", 0, 2, 1, 1),
    Sketcher.Constraint("Coincident", 1, 2, 2, 1),
    Sketcher.Constraint("Coincident", 2, 2, 3, 1),
    Sketcher.Constraint("Coincident", 3, 2, 0, 1),
    Sketcher.Constraint("Vertical", 0),
    Sketcher.Constraint("Horizontal", 1),
    Sketcher.Constraint("Vertical", 2),
    Sketcher.Constraint("PointOnObject", 0, 2, -1),
    Sketcher.Constraint("DistanceY", 0, 2, 0, 1, 5.0),
    Sketcher.Constraint("DistanceY", 2, 1, 2, 2, 4.0),
    Sketcher.Constraint("DistanceX", 1, 2, 1, 1, 7.25),
    Sketcher.Constraint("DistanceX", -1, 1, 0, 2, 10.82),
])
pad13 = body.newObject("PartDesign::Pad", "Pad012")
pad13.Profile = sketch18
pad13.Length = 0.25

doc.recompute()
